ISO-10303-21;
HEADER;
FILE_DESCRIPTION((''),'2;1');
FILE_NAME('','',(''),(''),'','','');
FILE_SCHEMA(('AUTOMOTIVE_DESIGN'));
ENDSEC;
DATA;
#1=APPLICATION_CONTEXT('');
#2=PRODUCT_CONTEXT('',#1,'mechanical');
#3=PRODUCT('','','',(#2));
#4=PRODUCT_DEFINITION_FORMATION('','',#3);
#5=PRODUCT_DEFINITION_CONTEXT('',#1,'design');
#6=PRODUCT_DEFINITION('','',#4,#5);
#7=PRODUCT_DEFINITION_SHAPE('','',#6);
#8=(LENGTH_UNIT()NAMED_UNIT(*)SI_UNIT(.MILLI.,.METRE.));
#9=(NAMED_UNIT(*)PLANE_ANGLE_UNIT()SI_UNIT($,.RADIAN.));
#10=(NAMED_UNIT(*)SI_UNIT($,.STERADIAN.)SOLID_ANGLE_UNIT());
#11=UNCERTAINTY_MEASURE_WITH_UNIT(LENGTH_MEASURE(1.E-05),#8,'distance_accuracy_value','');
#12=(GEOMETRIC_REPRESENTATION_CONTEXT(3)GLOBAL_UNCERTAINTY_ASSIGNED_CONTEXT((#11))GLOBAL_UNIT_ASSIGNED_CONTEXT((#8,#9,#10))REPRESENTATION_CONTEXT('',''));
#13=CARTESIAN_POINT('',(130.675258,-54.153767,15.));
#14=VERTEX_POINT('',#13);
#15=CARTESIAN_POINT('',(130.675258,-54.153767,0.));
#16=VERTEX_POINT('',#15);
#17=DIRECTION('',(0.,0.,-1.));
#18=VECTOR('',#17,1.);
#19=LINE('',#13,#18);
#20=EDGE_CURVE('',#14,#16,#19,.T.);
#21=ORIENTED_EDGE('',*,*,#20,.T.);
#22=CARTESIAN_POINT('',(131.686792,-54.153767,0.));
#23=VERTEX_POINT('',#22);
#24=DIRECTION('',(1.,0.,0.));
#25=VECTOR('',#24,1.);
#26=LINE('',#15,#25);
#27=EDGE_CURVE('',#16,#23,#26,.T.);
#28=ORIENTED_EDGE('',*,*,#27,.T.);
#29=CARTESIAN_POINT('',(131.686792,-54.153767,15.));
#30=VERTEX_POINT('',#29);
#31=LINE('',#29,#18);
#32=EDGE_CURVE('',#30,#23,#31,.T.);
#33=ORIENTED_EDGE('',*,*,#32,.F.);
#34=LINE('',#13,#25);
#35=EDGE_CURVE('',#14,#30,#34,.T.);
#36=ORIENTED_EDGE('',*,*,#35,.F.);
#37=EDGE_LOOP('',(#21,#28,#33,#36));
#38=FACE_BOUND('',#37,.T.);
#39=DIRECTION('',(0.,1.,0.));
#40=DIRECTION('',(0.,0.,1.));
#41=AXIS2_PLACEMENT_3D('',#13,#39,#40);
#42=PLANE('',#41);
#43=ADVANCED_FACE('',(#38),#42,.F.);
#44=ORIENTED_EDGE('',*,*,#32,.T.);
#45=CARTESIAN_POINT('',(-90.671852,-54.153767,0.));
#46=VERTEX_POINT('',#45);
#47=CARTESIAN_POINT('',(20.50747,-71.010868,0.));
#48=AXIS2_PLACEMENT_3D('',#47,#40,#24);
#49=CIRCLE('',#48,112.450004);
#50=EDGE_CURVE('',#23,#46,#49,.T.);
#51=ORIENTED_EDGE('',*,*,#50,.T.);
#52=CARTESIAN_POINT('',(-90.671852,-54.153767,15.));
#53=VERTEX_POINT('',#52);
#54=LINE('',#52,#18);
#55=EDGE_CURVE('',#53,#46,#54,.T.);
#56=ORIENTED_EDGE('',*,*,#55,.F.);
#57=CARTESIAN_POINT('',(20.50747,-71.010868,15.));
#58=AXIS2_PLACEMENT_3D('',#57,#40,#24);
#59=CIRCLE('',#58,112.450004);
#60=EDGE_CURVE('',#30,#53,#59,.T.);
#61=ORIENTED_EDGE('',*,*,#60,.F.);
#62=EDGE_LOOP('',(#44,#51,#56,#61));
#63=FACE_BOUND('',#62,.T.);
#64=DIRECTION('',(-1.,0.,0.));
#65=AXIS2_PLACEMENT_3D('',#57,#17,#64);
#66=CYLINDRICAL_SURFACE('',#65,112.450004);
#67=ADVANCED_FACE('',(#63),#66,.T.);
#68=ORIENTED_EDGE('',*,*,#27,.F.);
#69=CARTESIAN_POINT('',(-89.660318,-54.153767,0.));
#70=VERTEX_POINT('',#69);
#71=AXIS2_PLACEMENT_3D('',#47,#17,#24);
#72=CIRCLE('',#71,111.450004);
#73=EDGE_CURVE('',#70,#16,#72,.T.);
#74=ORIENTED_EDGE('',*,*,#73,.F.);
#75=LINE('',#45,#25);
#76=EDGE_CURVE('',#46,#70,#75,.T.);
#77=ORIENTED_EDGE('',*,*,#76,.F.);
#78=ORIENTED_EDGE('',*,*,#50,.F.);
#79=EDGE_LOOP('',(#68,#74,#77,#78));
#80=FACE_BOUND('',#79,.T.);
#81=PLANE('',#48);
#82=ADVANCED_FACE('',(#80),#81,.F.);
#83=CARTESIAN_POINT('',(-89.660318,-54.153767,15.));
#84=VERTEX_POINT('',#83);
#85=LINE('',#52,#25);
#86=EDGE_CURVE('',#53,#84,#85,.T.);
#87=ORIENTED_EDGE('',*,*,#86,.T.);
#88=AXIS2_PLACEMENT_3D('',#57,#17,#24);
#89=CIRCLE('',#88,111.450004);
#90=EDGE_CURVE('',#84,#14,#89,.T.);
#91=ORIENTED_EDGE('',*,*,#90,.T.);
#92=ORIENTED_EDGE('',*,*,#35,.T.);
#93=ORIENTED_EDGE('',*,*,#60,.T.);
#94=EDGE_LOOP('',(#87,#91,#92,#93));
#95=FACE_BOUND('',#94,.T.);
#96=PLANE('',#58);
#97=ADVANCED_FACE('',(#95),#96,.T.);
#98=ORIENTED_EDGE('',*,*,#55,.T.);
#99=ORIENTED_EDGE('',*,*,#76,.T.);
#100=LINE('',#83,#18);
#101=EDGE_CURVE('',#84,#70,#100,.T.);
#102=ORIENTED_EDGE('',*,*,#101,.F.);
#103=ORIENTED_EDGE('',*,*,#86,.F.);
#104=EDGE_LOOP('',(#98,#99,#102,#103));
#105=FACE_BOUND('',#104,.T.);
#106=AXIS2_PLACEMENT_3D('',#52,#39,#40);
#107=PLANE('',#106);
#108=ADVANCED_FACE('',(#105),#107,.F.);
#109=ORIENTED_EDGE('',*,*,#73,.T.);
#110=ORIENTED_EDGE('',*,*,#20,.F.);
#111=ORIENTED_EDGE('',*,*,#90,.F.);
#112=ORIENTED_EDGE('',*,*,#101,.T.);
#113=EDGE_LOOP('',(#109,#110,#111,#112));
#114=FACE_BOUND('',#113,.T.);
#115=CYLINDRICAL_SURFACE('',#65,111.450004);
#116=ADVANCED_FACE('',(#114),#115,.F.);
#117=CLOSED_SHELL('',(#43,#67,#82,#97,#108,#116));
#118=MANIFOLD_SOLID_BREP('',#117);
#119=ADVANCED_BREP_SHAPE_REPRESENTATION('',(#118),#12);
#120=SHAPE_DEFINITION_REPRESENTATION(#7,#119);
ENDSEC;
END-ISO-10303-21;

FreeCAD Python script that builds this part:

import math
import FreeCAD as App
import Part
import Sketcher

V = App.Vector

doc = App.newDocument("Part")
params = doc.addObject("Spreadsheet::Sheet", "Params")
for row, (alias, value) in enumerate([
    ("pad1_length", "15 mm"),
], start=1):
    params.set(f"A{row}", alias)
    params.set(f"B{row}", "=" + value)
    params.setAlias(f"B{row}", alias)

body = doc.addObject("PartDesign::Body", "Body")

sketch1 = body.newObject("Sketcher::SketchObject", "Sketch")
sketch1.AttachmentSupport = (doc.getObject("XY_Plane"), [""])
sketch1.MapMode = "FlatFace"
sketch1.addGeometry([
    Part.LineSegment(V(130.675258, -54.153767, 0), V(131.686792, -54.153767, 0)),
    Part.ArcOfCircle(Part.Circle(V(20.50747, -71.010868, 0), V(0, 0, 1), 112.450004), math.radians(8.621567), math.radians(171.378433)),
    Part.LineSegment(V(-90.671852, -54.153767, 0), V(-89.660318, -54.153767, 0)),
    Part.ArcOfCircle(Part.Circle(V(20.50747, -71.010868, 0), V(0, 0, 1), 111.450004), math.radians(8.699522), math.radians(171.300478)),
], False)
sketch1.addConstraint([
    Sketcher.Constraint("Coincident", 0, 2, 1, 1),
    Sketcher.Constraint("Coincident", 1, 2, 2, 1),
    Sketcher.Constraint("Coincident", 2, 2, 3, 2),
    Sketcher.Constraint("Coincident", 3, 1, 0, 1),
    Sketcher.Constraint("Horizontal", 0),
    Sketcher.Constraint("Horizontal", 2),
    Sketcher.Constraint("Coincident", 3, 3, 1, 3),
    Sketcher.Constraint("Horizontal", 0, 2, 1, 2),
    Sketcher.Constraint("Radius", 1, 112.450004),
    Sketcher.Constraint("Radius", 3, 111.450004),
    Sketcher.Constraint("DistanceY", 3, 3, 0, 2, 16.857101),
    Sketcher.Constraint("DistanceX", -1, 1, 1, 3, 20.50747),
    Sketcher.Constraint("DistanceY", 1, 3, -1, 1, 71.010868),
])
pad1 = body.newObject("PartDesign::Pad", "Pad")
pad1.Profile = sketch1
pad1.setExpression("Length", "Params.pad1_length")

doc.recompute()
